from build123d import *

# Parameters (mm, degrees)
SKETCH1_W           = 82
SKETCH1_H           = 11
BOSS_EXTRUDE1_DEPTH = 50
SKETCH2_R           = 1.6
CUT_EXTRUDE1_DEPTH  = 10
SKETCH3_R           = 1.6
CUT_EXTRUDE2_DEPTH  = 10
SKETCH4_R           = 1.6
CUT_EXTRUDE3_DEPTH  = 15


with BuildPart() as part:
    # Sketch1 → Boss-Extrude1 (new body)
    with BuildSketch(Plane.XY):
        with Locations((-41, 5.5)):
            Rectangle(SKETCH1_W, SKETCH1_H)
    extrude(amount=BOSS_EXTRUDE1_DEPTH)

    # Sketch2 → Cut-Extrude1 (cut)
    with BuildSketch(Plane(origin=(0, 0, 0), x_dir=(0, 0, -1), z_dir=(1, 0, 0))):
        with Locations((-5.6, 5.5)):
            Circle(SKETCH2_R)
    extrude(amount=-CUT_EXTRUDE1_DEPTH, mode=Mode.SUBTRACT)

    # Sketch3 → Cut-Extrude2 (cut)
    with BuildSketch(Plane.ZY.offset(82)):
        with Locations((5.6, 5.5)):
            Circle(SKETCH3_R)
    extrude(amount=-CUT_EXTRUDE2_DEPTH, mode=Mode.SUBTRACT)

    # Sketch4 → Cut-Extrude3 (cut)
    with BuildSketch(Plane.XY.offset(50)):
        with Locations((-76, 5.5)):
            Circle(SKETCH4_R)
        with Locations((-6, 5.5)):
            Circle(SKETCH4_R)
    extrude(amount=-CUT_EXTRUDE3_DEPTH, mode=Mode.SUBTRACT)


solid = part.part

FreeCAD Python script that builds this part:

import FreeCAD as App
import Part
import Sketcher
from FreeCAD import Vector
Q = App.Units.Quantity

doc = App.newDocument("Part")
body = doc.addObject("PartDesign::Body", "Body")

# Sketch on XY plane
sketch1 = doc.addObject("Sketcher::SketchObject", "Sketch")
body.addObject(sketch1)
sketch1.AttachmentSupport = (doc.XY_Plane, [""])
sketch1.MapMode = "FlatFace"
sketch1.addGeometry([
    Part.LineSegment(Vector(-82, 11, 0), Vector(-82, 0, 0)),
    Part.LineSegment(Vector(-82, 0, 0), Vector(0, 0, 0)),
    Part.LineSegment(Vector(0, 0, 0), Vector(0, 11, 0)),
    Part.LineSegment(Vector(0, 11, 0), Vector(-82, 11, 0)),
], False)
sketch1.addConstraint([
    Sketcher.Constraint("Coincident", 0, 2, 1, 1),
    Sketcher.Constraint("Coincident", 1, 2, 2, 1),
    Sketcher.Constraint("Coincident", 2, 2, 3, 1),
    Sketcher.Constraint("Coincident", 3, 2, 0, 1),
    Sketcher.Constraint("Vertical", 0),
    Sketcher.Constraint("Horizontal", 1),
    Sketcher.Constraint("Vertical", 2),
    Sketcher.Constraint("Horizontal", 3),
    Sketcher.Constraint("Coincident", 1, 2, -1, 1),
    Sketcher.Constraint("DistanceX", 1, 1, 1, 2, Q("82 mm")),
    Sketcher.Constraint("DistanceY", 0, 2, 0, 1, Q("11 mm")),
])
pad1 = doc.addObject("PartDesign::Pad", "Pad")
body.addObject(pad1)
pad1.Profile = sketch1
pad1.Length = 50

# Sketch on YZ plane
sketch2 = doc.addObject("Sketcher::SketchObject", "Sketch001")
body.addObject(sketch2)
sketch2.AttachmentSupport = (doc.YZ_Plane, [""])
sketch2.MapMode = "FlatFace"
sketch2.addGeometry(Part.Circle(Vector(5.5, 5.6, 0), Vector(0, 0, 1), 1.6), False)
sketch2.addConstraint([
    Sketcher.Constraint("Diameter", 0, Q("3.2 mm")),
    Sketcher.Constraint("DistanceX", -1, 1, 0, 3, Q("5.5 mm")),
    Sketcher.Constraint("DistanceY", -1, 1, 0, 3, Q("5.6 mm")),
])
pocket1 = doc.addObject("PartDesign::Pocket", "Pocket")
body.addObject(pocket1)
pocket1.Profile = sketch2
pocket1.Length = 10

# Sketch on YZ plane
sketch3 = doc.addObject("Sketcher::SketchObject", "Sketch002")
body.addObject(sketch3)
sketch3.AttachmentSupport = (doc.YZ_Plane, [""])
sketch3.MapMode = "FlatFace"
sketch3.AttachmentOffset = App.Placement(Vector(0, 0, -82), App.Rotation())
sketch3.addGeometry(Part.Circle(Vector(5.5, 5.6, 0), Vector(0, 0, 1), 1.6), False)
sketch3.addConstraint([
    Sketcher.Constraint("Diameter", 0, Q("3.2 mm")),
    Sketcher.Constraint("DistanceX", -1, 1, 0, 3, Q("5.5 mm")),
    Sketcher.Constraint("DistanceY", -1, 1, 0, 3, Q("5.6 mm")),
])
pocket2 = doc.addObject("PartDesign::Pocket", "Pocket001")
body.addObject(pocket2)
pocket2.Profile = sketch3
pocket2.Length = 10
pocket2.Reversed = True

# Sketch on XY plane
sketch4 = doc.addObject("Sketcher::SketchObject", "Sketch003")
body.addObject(sketch4)
sketch4.AttachmentSupport = (doc.XY_Plane, [""])
sketch4.MapMode = "FlatFace"
sketch4.AttachmentOffset = App.Placement(Vector(0, 0, 50), App.Rotation())
sketch4.addGeometry([
    Part.Circle(Vector(-76, 5.5, 0), Vector(0, 0, 1), 1.6),
    Part.Circle(Vector(-6, 5.5, 0), Vector(0, 0, 1), 1.6),
], False)
sketch4.addConstraint([
    Sketcher.Constraint("Equal", 0, 1),
    Sketcher.Constraint("Horizontal", 0, 3, 1, 3),
    Sketcher.Constraint("Diameter", 0, Q("3.2 mm")),
    Sketcher.Constraint("DistanceX", 0, 3, -1, 1, Q("76 mm")),
    Sketcher.Constraint("DistanceX", 1, 3, -1, 1, Q("6 mm")),
    Sketcher.Constraint("DistanceY", -1, 1, 0, 3, Q("5.5 mm")),
])
pocket3 = doc.addObject("PartDesign::Pocket", "Pocket002")
body.addObject(pocket3)
pocket3.Profile = sketch4
pocket3.Length = 15

doc.recompute()
